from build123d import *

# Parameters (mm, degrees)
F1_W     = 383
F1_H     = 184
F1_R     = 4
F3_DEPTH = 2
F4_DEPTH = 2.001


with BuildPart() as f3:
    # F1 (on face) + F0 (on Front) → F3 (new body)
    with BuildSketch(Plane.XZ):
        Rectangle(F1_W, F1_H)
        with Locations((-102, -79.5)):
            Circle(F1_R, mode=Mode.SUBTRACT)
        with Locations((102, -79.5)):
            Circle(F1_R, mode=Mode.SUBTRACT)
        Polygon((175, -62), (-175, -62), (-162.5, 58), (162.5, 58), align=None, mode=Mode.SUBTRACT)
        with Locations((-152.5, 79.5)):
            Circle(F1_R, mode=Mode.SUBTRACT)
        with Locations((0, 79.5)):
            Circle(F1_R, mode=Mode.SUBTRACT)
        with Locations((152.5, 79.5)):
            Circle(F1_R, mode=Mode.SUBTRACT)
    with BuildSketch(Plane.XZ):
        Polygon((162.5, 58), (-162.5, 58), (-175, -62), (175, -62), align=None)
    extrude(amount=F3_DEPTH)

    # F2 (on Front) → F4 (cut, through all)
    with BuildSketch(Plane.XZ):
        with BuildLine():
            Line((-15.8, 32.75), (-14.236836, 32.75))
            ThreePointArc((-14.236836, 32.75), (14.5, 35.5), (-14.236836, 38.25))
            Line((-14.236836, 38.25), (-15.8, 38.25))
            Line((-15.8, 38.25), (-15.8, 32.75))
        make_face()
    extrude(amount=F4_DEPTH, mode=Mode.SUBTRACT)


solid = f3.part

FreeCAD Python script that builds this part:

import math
import FreeCAD as App
import Part
import Sketcher

V = App.Vector


def add_polygon(sketch, points):
    """Adds a closed chain of lines whose ends are joined by coincident constraints."""
    first, n = sketch.GeometryCount, len(points)
    for a, b in zip(points, points[1:] + points[:1]):
        sketch.addGeometry(Part.LineSegment(App.Vector(*a, 0), App.Vector(*b, 0)), False)
    for i in range(n):
        sketch.addConstraint(Sketcher.Constraint("Coincident", first + i, 2, first + (i + 1) % n, 1))

doc = App.newDocument("Part")
body = doc.addObject("PartDesign::Body", "Body")

# Sketch on XZ plane
sketch1 = body.newObject("Sketcher::SketchObject", "Sketch")
sketch1.AttachmentSupport = (doc.getObject("XZ_Plane"), [""])
sketch1.MapMode = "FlatFace"
add_polygon(sketch1, [(-191.5, 92), (-191.5, -92), (191.5, -92), (191.5, 92)])  # lines 0-3
sketch1.addGeometry(Part.Circle(V(-102, -79.5, 0), V(0, 0, 1), 4), False)  # 4
sketch1.addGeometry(Part.Circle(V(102, -79.5, 0), V(0, 0, 1), 4), False)  # 5
sketch1.addGeometry(Part.Circle(V(-152.5, 79.5, 0), V(0, 0, 1), 4), False)  # 6
sketch1.addGeometry(Part.Circle(V(0, 79.5, 0), V(0, 0, 1), 4), False)  # 7
sketch1.addGeometry(Part.Circle(V(152.5, 79.5, 0), V(0, 0, 1), 4), False)  # 8
sketch1.addConstraint(Sketcher.Constraint("Vertical", 0))
sketch1.addConstraint(Sketcher.Constraint("Horizontal", 1))
sketch1.addConstraint(Sketcher.Constraint("Vertical", 2))
sketch1.addConstraint(Sketcher.Constraint("Horizontal", 3))
sketch1.addConstraint(Sketcher.Constraint("Equal", 4, 5))
sketch1.addConstraint(Sketcher.Constraint("Equal", 5, 6))
sketch1.addConstraint(Sketcher.Constraint("Equal", 6, 7))
sketch1.addConstraint(Sketcher.Constraint("Equal", 7, 8))
sketch1.addConstraint(Sketcher.Constraint("Symmetric", 0, 2, 2, 2, -1, 1))
sketch1.addConstraint(Sketcher.Constraint("Symmetric", 4, 3, 5, 3, -2))
sketch1.addConstraint(Sketcher.Constraint("Symmetric", 6, 3, 8, 3, -2))
sketch1.addConstraint(Sketcher.Constraint("PointOnObject", 7, 3, -2))
sketch1.addConstraint(Sketcher.Constraint("Horizontal", 6, 3, 7, 3))
sketch1.addConstraint(Sketcher.Constraint("Diameter", 4, 8.0))
sketch1.addConstraint(Sketcher.Constraint("DistanceX", 1, 1, 1, 2, 383.0))
sketch1.addConstraint(Sketcher.Constraint("DistanceY", 0, 2, 0, 1, 184.0))
sketch1.addConstraint(Sketcher.Constraint("DistanceX", 4, 3, -1, 1, 102.0))
sketch1.addConstraint(Sketcher.Constraint("DistanceY", 4, 3, 6, 3, 159.0))
sketch1.addConstraint(Sketcher.Constraint("DistanceX", 6, 3, 8, 3, 305.0))
sketch1.addConstraint(Sketcher.Constraint("DistanceY", 4, 3, -1, 1, 79.5))
pad1 = body.newObject("PartDesign::Pad", "Pad")
pad1.Profile = sketch1
pad1.Length = 2

# Sketch on XZ plane
sketch2 = body.newObject("Sketcher::SketchObject", "Sketch001")
sketch2.AttachmentSupport = (doc.getObject("XZ_Plane"), [""])
sketch2.MapMode = "FlatFace"
sketch2.addGeometry(Part.LineSegment(V(-15.8, 32.8, 0), V(-14.2, 32.8, 0)), False)
sketch2.addGeometry(Part.ArcOfCircle(Part.Circle(V(0, 35.5, 0), V(0, 0, 1), 14.5), math.radians(-169), math.radians(169)), False)
sketch2.addGeometry(Part.LineSegment(V(-14.2, 38.2, 0), V(-15.8, 38.2, 0)), False)
sketch2.addGeometry(Part.LineSegment(V(-15.8, 38.2, 0), V(-15.8, 32.8, 0)), False)
sketch2.addConstraint(Sketcher.Constraint("Coincident", 0, 2, 1, 1))
sketch2.addConstraint(Sketcher.Constraint("Coincident", 1, 2, 2, 1))
sketch2.addConstraint(Sketcher.Constraint("Coincident", 2, 2, 3, 1))
sketch2.addConstraint(Sketcher.Constraint("Coincident", 3, 2, 0, 1))
sketch2.addConstraint(Sketcher.Constraint("Horizontal", 0))
sketch2.addConstraint(Sketcher.Constraint("Horizontal", 2))
sketch2.addConstraint(Sketcher.Constraint("Vertical", 3))
sketch2.addConstraint(Sketcher.Constraint("PointOnObject", 1, 3, -2))
sketch2.addConstraint(Sketcher.Constraint("Vertical", 0, 2, 1, 2))
sketch2.addConstraint(Sketcher.Constraint("Radius", 1, 14.5))
sketch2.addConstraint(Sketcher.Constraint("DistanceY", 3, 2, 3, 1, 5.5))
sketch2.addConstraint(Sketcher.Constraint("DistanceY", -1, 1, 1, 3, 35.5))
sketch2.addConstraint(Sketcher.Constraint("DistanceX", 2, 2, -1, 1, 15.8))
pocket1 = body.newObject("PartDesign::Pocket", "Pocket")
pocket1.Profile = sketch2
pocket1.Type = "ThroughAll"
pocket1.Reversed = True

doc.recompute()
